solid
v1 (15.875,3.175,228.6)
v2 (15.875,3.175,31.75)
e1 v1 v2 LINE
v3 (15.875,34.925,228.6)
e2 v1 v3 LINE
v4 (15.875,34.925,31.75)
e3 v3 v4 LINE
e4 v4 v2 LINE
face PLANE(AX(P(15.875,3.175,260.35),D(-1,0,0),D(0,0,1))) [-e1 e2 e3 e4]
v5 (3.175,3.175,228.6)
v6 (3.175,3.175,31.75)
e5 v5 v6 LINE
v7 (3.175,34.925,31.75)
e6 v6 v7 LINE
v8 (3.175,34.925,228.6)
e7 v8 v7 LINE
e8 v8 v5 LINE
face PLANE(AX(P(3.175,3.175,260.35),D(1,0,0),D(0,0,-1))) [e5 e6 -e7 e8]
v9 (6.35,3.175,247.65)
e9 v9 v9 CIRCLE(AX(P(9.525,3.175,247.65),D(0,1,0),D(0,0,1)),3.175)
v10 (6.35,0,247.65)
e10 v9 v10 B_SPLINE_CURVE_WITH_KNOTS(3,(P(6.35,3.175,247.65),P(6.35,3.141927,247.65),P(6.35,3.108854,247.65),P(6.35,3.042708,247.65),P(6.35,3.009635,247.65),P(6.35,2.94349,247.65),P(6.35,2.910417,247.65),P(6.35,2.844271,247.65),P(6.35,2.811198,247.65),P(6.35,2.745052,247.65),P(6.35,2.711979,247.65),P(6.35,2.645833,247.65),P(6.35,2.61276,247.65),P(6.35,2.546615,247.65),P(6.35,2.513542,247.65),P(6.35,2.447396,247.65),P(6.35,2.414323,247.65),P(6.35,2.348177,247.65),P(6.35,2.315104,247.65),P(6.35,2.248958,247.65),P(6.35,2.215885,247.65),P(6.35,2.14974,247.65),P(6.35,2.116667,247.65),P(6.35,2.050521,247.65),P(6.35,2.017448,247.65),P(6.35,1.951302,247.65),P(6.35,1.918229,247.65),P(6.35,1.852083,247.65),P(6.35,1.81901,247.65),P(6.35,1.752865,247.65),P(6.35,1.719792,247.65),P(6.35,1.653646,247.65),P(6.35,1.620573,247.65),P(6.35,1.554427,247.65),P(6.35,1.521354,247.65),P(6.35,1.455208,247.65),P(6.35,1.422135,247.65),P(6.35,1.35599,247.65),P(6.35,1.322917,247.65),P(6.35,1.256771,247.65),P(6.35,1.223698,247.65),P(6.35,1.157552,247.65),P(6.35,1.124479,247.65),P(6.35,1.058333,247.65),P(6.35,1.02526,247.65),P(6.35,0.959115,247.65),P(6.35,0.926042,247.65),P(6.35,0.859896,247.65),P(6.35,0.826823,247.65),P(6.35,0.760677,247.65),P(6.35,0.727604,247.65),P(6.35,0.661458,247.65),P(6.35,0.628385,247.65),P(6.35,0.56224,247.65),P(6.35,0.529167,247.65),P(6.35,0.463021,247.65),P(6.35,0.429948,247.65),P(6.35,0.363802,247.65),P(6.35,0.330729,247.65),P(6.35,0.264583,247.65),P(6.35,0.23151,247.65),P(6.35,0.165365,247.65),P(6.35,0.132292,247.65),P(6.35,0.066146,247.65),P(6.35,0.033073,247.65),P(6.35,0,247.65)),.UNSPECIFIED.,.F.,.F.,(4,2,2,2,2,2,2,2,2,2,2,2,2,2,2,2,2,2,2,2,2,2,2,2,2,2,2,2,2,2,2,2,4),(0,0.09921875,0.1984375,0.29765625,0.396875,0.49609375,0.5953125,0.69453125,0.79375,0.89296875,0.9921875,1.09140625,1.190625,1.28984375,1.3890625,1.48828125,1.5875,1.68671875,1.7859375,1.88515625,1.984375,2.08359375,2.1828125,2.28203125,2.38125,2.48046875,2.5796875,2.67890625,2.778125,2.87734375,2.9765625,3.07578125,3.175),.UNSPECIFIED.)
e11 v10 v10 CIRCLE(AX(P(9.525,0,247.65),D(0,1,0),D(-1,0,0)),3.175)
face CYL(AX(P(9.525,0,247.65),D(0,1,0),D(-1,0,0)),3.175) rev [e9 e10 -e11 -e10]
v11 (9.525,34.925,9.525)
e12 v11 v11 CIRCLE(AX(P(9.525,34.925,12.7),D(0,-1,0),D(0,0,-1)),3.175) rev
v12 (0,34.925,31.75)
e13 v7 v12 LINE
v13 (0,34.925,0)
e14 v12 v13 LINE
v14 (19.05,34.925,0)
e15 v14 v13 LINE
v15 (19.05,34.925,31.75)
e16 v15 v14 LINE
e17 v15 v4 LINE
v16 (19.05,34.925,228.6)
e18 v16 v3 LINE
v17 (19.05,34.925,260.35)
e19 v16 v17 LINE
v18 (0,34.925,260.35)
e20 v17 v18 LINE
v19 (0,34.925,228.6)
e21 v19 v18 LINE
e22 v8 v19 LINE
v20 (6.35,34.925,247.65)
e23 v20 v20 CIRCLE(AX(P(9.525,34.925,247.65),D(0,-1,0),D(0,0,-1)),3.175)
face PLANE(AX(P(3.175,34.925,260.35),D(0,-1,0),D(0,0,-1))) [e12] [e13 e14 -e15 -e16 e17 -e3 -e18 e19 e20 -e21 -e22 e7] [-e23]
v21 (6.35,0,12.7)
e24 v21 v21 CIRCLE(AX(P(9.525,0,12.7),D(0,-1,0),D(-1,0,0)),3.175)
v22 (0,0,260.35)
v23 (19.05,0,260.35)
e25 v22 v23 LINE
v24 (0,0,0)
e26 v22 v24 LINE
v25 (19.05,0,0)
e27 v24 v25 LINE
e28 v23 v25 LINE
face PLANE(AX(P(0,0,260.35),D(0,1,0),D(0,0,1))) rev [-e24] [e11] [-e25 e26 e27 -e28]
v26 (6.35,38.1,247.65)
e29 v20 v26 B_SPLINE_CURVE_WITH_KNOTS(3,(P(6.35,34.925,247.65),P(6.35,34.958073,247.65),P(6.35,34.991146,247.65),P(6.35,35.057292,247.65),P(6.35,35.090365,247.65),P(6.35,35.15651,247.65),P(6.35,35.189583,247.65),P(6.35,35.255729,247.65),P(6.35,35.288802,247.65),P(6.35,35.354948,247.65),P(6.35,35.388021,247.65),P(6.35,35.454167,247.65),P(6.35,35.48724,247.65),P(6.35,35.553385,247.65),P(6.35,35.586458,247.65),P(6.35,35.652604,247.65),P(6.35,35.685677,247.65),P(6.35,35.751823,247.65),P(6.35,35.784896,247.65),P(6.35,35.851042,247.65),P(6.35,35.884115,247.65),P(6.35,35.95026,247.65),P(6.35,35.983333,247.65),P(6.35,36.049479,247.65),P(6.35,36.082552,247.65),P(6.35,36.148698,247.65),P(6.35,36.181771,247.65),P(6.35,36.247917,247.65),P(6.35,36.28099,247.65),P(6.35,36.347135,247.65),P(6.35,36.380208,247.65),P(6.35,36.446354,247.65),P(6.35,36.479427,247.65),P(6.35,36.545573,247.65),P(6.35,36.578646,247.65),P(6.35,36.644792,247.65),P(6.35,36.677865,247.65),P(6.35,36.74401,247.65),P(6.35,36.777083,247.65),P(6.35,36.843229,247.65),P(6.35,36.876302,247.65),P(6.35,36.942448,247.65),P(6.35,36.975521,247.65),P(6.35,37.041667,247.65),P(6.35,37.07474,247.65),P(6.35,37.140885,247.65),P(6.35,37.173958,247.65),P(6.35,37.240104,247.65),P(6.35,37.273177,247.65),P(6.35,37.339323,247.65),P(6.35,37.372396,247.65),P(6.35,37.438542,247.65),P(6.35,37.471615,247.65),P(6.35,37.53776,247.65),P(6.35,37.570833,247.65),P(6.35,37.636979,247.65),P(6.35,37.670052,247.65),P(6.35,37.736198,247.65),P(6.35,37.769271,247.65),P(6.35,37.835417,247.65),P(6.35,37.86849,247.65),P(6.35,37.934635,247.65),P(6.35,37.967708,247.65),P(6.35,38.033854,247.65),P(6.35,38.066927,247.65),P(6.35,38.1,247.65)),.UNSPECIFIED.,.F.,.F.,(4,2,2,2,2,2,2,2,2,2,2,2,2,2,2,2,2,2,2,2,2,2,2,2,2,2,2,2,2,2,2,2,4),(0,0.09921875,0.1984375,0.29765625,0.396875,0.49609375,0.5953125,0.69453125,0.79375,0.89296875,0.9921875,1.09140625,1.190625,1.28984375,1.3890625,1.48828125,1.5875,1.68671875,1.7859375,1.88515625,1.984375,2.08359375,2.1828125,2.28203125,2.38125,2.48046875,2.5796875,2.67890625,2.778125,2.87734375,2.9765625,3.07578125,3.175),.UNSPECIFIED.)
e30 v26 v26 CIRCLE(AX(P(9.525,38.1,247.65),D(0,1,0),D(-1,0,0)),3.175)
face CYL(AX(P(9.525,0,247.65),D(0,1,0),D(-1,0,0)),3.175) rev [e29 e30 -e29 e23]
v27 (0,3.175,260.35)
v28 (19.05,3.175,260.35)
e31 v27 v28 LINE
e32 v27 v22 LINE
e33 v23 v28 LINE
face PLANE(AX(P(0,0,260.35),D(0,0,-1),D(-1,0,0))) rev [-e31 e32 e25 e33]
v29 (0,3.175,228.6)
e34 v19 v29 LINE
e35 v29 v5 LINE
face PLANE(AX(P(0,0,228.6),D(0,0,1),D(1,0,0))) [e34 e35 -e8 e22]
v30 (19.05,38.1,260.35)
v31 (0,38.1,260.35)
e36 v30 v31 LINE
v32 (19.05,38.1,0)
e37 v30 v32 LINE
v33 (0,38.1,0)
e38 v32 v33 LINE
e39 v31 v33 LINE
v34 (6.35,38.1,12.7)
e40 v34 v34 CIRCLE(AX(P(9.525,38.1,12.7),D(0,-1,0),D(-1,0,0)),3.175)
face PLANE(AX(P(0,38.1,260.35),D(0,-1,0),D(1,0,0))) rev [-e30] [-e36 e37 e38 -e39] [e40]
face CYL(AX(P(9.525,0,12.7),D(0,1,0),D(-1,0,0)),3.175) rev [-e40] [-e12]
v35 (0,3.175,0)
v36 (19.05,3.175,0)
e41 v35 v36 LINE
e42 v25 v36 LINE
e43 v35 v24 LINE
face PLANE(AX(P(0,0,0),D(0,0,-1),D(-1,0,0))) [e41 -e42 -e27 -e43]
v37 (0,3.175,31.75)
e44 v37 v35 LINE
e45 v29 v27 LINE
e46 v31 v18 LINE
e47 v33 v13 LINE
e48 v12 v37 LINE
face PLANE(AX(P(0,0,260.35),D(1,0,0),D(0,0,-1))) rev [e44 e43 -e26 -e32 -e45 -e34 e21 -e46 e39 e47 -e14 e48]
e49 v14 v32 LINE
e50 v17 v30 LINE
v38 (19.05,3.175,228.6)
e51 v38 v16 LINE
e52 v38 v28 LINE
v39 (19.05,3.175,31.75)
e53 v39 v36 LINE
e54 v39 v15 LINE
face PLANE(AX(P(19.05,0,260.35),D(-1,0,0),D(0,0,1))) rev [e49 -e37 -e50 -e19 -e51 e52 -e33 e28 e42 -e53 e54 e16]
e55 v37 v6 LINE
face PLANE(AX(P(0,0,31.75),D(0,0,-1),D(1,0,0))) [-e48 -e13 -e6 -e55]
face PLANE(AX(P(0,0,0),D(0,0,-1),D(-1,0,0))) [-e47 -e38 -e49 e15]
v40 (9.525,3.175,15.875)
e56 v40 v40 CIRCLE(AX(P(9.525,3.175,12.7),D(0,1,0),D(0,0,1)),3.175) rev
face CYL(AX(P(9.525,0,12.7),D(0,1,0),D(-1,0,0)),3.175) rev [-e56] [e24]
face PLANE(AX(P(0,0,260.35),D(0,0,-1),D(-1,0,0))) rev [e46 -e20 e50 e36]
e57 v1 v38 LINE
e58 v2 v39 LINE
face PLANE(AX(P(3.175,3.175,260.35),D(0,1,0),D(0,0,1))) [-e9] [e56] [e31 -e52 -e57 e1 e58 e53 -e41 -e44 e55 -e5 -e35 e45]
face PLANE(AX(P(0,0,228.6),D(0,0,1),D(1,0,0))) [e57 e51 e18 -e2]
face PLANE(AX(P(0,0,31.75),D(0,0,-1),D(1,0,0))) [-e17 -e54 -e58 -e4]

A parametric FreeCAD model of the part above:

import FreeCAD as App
import Part
import Sketcher

V = App.Vector
Q = App.Units.Quantity


def add_polygon(sketch, points):
    """Adds a closed chain of lines whose ends are joined by coincident constraints."""
    first, n = sketch.GeometryCount, len(points)
    for a, b in zip(points, points[1:] + points[:1]):
        sketch.addGeometry(Part.LineSegment(App.Vector(*a, 0), App.Vector(*b, 0)), False)
    for i in range(n):
        sketch.addConstraint(Sketcher.Constraint("Coincident", first + i, 2, first + (i + 1) % n, 1))

doc = App.newDocument("Part")
body = doc.addObject("PartDesign::Body", "Body")

# Sketch on XY plane
sketch1 = body.newObject("Sketcher::SketchObject", "Sketch")
sketch1.AttachmentSupport = (doc.getObject("XY_Plane"), [""])
sketch1.MapMode = "FlatFace"
add_polygon(sketch1, [(0, 38), (0, 0), (19, 0), (19, 38)])  # lines 0-3
add_polygon(sketch1, [(16, 3), (3, 3), (3, 35), (16, 35)])  # lines 4-7
sketch1.addConstraint(Sketcher.Constraint("Vertical", 0))
sketch1.addConstraint(Sketcher.Constraint("Horizontal", 1))
sketch1.addConstraint(Sketcher.Constraint("Vertical", 2))
sketch1.addConstraint(Sketcher.Constraint("Horizontal", 3))
sketch1.addConstraint(Sketcher.Constraint("Horizontal", 4))
sketch1.addConstraint(Sketcher.Constraint("Vertical", 5))
sketch1.addConstraint(Sketcher.Constraint("Horizontal", 6))
sketch1.addConstraint(Sketcher.Constraint("Vertical", 7))
sketch1.addConstraint(Sketcher.Constraint("Coincident", 0, 2, -1, 1))
sketch1.addConstraint(Sketcher.Constraint("DistanceX", 4, 2, 4, 1, Q("0.5 in")))
sketch1.addConstraint(Sketcher.Constraint("DistanceY", 0, 2, 0, 1, Q("1.5 in")))
sketch1.addConstraint(Sketcher.Constraint("DistanceX", 1, 1, 1, 2, Q("0.75 in")))
sketch1.addConstraint(Sketcher.Constraint("DistanceY", 5, 1, 5, 2, Q("1.25 in")))
sketch1.addConstraint(Sketcher.Constraint("DistanceX", -1, 1, 4, 2, Q("0.125 in")))
sketch1.addConstraint(Sketcher.Constraint("DistanceY", -1, 1, 4, 2, Q("0.125 in")))
pad1 = body.newObject("PartDesign::Pad", "Pad")
pad1.Profile = sketch1
pad1.Length = Q("10.25 in")

# Sketch on XY plane
sketch2 = body.newObject("Sketcher::SketchObject", "Sketch001")
sketch2.AttachmentSupport = (doc.getObject("XY_Plane"), [""])
sketch2.MapMode = "FlatFace"
sketch2.AttachmentOffset = App.Placement(V(0, 0, 10.25 * 25.4), App.Rotation())
add_polygon(sketch2, [(0, 35), (0, 3), (19, 3), (19, 35)])  # lines 0-3
sketch2.addConstraint(Sketcher.Constraint("Vertical", 0))
sketch2.addConstraint(Sketcher.Constraint("Horizontal", 1))
sketch2.addConstraint(Sketcher.Constraint("Vertical", 2))
sketch2.addConstraint(Sketcher.Constraint("Horizontal", 3))
sketch2.addConstraint(Sketcher.Constraint("PointOnObject", 0, 2, -2))
sketch2.addConstraint(Sketcher.Constraint("DistanceX", 1, 1, 1, 2, Q("0.75 in")))
sketch2.addConstraint(Sketcher.Constraint("DistanceY", 0, 2, 0, 1, Q("1.25 in")))
sketch2.addConstraint(Sketcher.Constraint("DistanceY", -1, 1, 0, 2, Q("0.125 in")))
pocket1 = body.newObject("PartDesign::Pocket", "Pocket")
pocket1.Profile = sketch2
pocket1.Length = Q("1.25 in")

# Sketch on XZ plane
sketch3 = body.newObject("Sketcher::SketchObject", "Sketch002")
sketch3.AttachmentSupport = (doc.getObject("XZ_Plane"), [""])
sketch3.MapMode = "FlatFace"
sketch3.AttachmentOffset = App.Placement(V(0, 0, -1.5 * 25.4), App.Rotation())
sketch3.addGeometry(Part.Circle(V(9.5, 247.7, 0), V(0, 0, 1), 3.2), False)
sketch3.addConstraint(Sketcher.Constraint("Diameter", 0, Q("0.25 in")))
sketch3.addConstraint(Sketcher.Constraint("DistanceY", -1, 1, 0, 3, Q("9.75 in")))
sketch3.addConstraint(Sketcher.Constraint("DistanceX", -1, 1, 0, 3, Q("0.375 in")))
pocket2 = body.newObject("PartDesign::Pocket", "Pocket001")
pocket2.Profile = sketch3
pocket2.Type = "ThroughAll"
pocket2.Reversed = True
doc.recompute()

datumplane = body.newObject("PartDesign::Plane", "DatumPlane")
datumplane.AttachmentSupport = (doc.getObject("XY_Plane"), [""])
datumplane.MapMode = "FlatFace"
datumplane.AttachmentOffset = App.Placement(V(0, 0, 5.125 * 25.4), App.Rotation())
mirrored = body.newObject("PartDesign::Mirrored", "Mirrored")
mirrored.Originals = [pocket1, pocket2]
mirrored.MirrorPlane = (datumplane, [""])
body.Tip = mirrored

doc.recompute()
